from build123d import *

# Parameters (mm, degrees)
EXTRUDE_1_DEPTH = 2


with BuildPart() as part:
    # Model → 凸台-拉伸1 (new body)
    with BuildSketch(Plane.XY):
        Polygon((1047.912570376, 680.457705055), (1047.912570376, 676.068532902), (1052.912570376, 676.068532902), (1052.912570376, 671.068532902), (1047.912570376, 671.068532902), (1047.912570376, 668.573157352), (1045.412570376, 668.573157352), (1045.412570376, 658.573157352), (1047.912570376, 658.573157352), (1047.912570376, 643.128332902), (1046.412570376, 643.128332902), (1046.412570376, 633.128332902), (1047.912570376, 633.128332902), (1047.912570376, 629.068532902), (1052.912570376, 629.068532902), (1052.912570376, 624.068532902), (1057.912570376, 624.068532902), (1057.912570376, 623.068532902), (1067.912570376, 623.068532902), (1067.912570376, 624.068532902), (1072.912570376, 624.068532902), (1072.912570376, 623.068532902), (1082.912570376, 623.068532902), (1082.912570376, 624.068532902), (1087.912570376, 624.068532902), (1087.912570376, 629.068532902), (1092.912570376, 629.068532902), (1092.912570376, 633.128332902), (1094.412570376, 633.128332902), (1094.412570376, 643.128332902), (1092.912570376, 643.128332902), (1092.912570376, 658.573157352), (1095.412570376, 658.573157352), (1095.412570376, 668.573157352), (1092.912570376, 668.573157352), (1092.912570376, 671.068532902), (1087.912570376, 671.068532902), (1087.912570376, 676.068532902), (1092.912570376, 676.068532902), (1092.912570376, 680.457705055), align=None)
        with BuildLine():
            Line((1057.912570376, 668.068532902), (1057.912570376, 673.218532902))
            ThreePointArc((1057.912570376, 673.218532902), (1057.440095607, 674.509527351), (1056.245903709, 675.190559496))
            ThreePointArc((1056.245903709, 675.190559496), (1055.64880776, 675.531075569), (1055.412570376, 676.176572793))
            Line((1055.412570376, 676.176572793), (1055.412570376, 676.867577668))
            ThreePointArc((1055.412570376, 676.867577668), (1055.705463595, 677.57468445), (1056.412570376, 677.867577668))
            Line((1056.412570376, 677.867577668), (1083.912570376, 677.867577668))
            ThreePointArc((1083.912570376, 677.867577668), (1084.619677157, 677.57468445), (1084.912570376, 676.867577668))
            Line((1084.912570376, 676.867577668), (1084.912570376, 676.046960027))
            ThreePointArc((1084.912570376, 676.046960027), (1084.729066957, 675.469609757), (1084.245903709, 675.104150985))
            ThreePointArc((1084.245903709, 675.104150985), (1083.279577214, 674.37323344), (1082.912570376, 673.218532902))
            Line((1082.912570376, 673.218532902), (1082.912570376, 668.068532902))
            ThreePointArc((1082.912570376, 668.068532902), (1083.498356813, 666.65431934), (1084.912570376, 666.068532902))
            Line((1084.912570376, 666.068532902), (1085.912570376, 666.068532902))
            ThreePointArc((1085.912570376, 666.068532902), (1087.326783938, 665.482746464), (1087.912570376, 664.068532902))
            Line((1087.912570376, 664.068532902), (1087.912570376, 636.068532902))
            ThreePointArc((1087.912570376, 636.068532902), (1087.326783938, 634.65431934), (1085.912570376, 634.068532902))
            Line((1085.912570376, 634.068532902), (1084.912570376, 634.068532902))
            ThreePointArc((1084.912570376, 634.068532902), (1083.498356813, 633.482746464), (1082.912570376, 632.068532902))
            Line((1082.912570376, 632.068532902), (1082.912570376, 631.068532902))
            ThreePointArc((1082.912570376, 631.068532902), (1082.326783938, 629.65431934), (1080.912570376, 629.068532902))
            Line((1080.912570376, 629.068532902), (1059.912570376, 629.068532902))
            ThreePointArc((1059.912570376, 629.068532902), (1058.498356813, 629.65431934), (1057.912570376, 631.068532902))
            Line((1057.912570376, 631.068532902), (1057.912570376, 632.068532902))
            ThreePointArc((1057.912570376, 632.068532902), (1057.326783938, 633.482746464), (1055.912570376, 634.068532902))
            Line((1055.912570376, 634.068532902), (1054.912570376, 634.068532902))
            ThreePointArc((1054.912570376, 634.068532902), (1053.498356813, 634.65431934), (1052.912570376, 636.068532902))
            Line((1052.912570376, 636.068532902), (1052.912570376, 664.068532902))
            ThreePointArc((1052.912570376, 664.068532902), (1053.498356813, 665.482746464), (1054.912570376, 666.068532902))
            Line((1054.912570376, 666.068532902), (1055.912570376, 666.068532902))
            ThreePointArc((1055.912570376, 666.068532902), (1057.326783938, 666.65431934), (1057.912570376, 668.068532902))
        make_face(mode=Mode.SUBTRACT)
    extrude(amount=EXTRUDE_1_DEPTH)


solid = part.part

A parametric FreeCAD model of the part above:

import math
import FreeCAD as App
import Part
import Sketcher

V = App.Vector


def add_polygon(sketch, points):
    """Adds a closed chain of lines whose ends are joined by coincident constraints."""
    first, n = sketch.GeometryCount, len(points)
    for a, b in zip(points, points[1:] + points[:1]):
        sketch.addGeometry(Part.LineSegment(App.Vector(*a, 0), App.Vector(*b, 0)), False)
    for i in range(n):
        sketch.addConstraint(Sketcher.Constraint("Coincident", first + i, 2, first + (i + 1) % n, 1))

doc = App.newDocument("Part")
body = doc.addObject("PartDesign::Body", "Body")

sketch1 = body.newObject("Sketcher::SketchObject", "Sketch")
sketch1.AttachmentSupport = (doc.getObject("XY_Plane"), [""])
sketch1.MapMode = "FlatFace"
add_polygon(sketch1, [(1047.9, 680.5), (1047.9, 676.1), (1052.9, 676.1), (1052.9, 671.1), (1047.9, 671.1), (1047.9, 668.6), (1045.4, 668.6), (1045.4, 658.6), (1047.9, 658.6), (1047.9, 643.1), (1046.4, 643.1), (1046.4, 633.1), (1047.9, 633.1), (1047.9, 629.1), (1052.9, 629.1), (1052.9, 624.1), (1057.9, 624.1), (1057.9, 623.1), (1067.9, 623.1), (1067.9, 624.1), (1072.9, 624.1), (1072.9, 623.1), (1082.9, 623.1), (1082.9, 624.1), (1087.9, 624.1), (1087.9, 629.1), (1092.9, 629.1), (1092.9, 633.1), (1094.4, 633.1), (1094.4, 643.1), (1092.9, 643.1), (1092.9, 658.6), (1095.4, 658.6), (1095.4, 668.6), (1092.9, 668.6), (1092.9, 671.1), (1087.9, 671.1), (1087.9, 676.1), (1092.9, 676.1), (1092.9, 680.5)])
sketch1.addGeometry(Part.ArcOfCircle(Part.Circle(V(1055.9, 668.1, 0), V(0, 0, 1), 2), math.radians(-90), math.radians(0)), False)
sketch1.addGeometry(Part.LineSegment(V(1057.9, 668.1, 0), V(1057.9, 673.2, 0)), False)
sketch1.addGeometry(Part.ArcOfCircle(Part.Circle(V(1055.9, 673.2, 0), V(0, 0, 1), 2), math.radians(0), math.radians(80)), False)
sketch1.addGeometry(Part.ArcOfCircle(Part.Circle(V(1056.4, 676.2, 0), V(0, 0, 1), 1), math.radians(180), math.radians(260)), False)
sketch1.addGeometry(Part.LineSegment(V(1055.4, 676.2, 0), V(1055.4, 676.9, 0)), False)
sketch1.addGeometry(Part.ArcOfCircle(Part.Circle(V(1056.4, 676.9, 0), V(0, 0, 1), 1), math.radians(90), math.radians(180)), False)
sketch1.addGeometry(Part.LineSegment(V(1056.4, 677.9, 0), V(1083.9, 677.9, 0)), False)
sketch1.addGeometry(Part.ArcOfCircle(Part.Circle(V(1083.9, 676.9, 0), V(0, 0, 1), 1), math.radians(0), math.radians(90)), False)
sketch1.addGeometry(Part.LineSegment(V(1084.9, 676.9, 0), V(1084.9, 676, 0)), False)
sketch1.addGeometry(Part.ArcOfCircle(Part.Circle(V(1083.9, 676, 0), V(0, 0, 1), 1), math.radians(-71), math.radians(0)), False)
sketch1.addGeometry(Part.ArcOfCircle(Part.Circle(V(1084.9, 673.2, 0), V(0, 0, 1), 2), math.radians(109), math.radians(180)), False)
sketch1.addGeometry(Part.LineSegment(V(1082.9, 673.2, 0), V(1082.9, 668.1, 0)), False)
sketch1.addGeometry(Part.ArcOfCircle(Part.Circle(V(1084.9, 668.1, 0), V(0, 0, 1), 2), math.radians(180), math.radians(270)), False)
sketch1.addGeometry(Part.LineSegment(V(1084.9, 666.1, 0), V(1085.9, 666.1, 0)), False)
sketch1.addGeometry(Part.ArcOfCircle(Part.Circle(V(1085.9, 664.1, 0), V(0, 0, 1), 2), math.radians(0), math.radians(90)), False)
sketch1.addGeometry(Part.LineSegment(V(1087.9, 664.1, 0), V(1087.9, 636.1, 0)), False)
sketch1.addGeometry(Part.ArcOfCircle(Part.Circle(V(1085.9, 636.1, 0), V(0, 0, 1), 2), math.radians(-90), math.radians(0)), False)
sketch1.addGeometry(Part.LineSegment(V(1085.9, 634.1, 0), V(1084.9, 634.1, 0)), False)
sketch1.addGeometry(Part.ArcOfCircle(Part.Circle(V(1084.9, 632.1, 0), V(0, 0, 1), 2), math.radians(90), math.radians(180)), False)
sketch1.addGeometry(Part.LineSegment(V(1082.9, 632.1, 0), V(1082.9, 631.1, 0)), False)
sketch1.addGeometry(Part.ArcOfCircle(Part.Circle(V(1080.9, 631.1, 0), V(0, 0, 1), 2), math.radians(-90), math.radians(0)), False)
sketch1.addGeometry(Part.LineSegment(V(1080.9, 629.1, 0), V(1059.9, 629.1, 0)), False)
sketch1.addGeometry(Part.ArcOfCircle(Part.Circle(V(1059.9, 631.1, 0), V(0, 0, 1), 2), math.radians(180), math.radians(270)), False)
sketch1.addGeometry(Part.LineSegment(V(1057.9, 631.1, 0), V(1057.9, 632.1, 0)), False)
sketch1.addGeometry(Part.ArcOfCircle(Part.Circle(V(1055.9, 632.1, 0), V(0, 0, 1), 2), math.radians(0), math.radians(90)), False)
sketch1.addGeometry(Part.LineSegment(V(1055.9, 634.1, 0), V(1054.9, 634.1, 0)), False)
sketch1.addGeometry(Part.ArcOfCircle(Part.Circle(V(1054.9, 636.1, 0), V(0, 0, 1), 2), math.radians(180), math.radians(270)), False)
sketch1.addGeometry(Part.LineSegment(V(1052.9, 636.1, 0), V(1052.9, 664.1, 0)), False)
sketch1.addGeometry(Part.ArcOfCircle(Part.Circle(V(1054.9, 664.1, 0), V(0, 0, 1), 2), math.radians(90), math.radians(180)), False)
sketch1.addGeometry(Part.LineSegment(V(1054.9, 666.1, 0), V(1055.9, 666.1, 0)), False)
sketch1.addConstraint(Sketcher.Constraint("Tangent", 40, 2, 41, 1))
sketch1.addConstraint(Sketcher.Constraint("Tangent", 41, 2, 42, 1))
sketch1.addConstraint(Sketcher.Constraint("Tangent", 42, 2, 43, 2))
sketch1.addConstraint(Sketcher.Constraint("Tangent", 43, 1, 44, 1))
sketch1.addConstraint(Sketcher.Constraint("Tangent", 44, 2, 45, 2))
sketch1.addConstraint(Sketcher.Constraint("Tangent", 45, 1, 46, 1))
sketch1.addConstraint(Sketcher.Constraint("Tangent", 46, 2, 47, 2))
sketch1.addConstraint(Sketcher.Constraint("Tangent", 47, 1, 48, 1))
sketch1.addConstraint(Sketcher.Constraint("Tangent", 48, 2, 49, 2))
sketch1.addConstraint(Sketcher.Constraint("Tangent", 49, 1, 50, 1))
sketch1.addConstraint(Sketcher.Constraint("Tangent", 50, 2, 51, 1))
sketch1.addConstraint(Sketcher.Constraint("Tangent", 51, 2, 52, 1))
sketch1.addConstraint(Sketcher.Constraint("Tangent", 52, 2, 53, 1))
sketch1.addConstraint(Sketcher.Constraint("Tangent", 53, 2, 54, 2))
sketch1.addConstraint(Sketcher.Constraint("Tangent", 54, 1, 55, 1))
sketch1.addConstraint(Sketcher.Constraint("Tangent", 55, 2, 56, 2))
sketch1.addConstraint(Sketcher.Constraint("Tangent", 56, 1, 57, 1))
sketch1.addConstraint(Sketcher.Constraint("Tangent", 57, 2, 58, 1))
sketch1.addConstraint(Sketcher.Constraint("Tangent", 58, 2, 59, 1))
sketch1.addConstraint(Sketcher.Constraint("Tangent", 59, 2, 60, 2))
sketch1.addConstraint(Sketcher.Constraint("Tangent", 60, 1, 61, 1))
sketch1.addConstraint(Sketcher.Constraint("Tangent", 61, 2, 62, 2))
sketch1.addConstraint(Sketcher.Constraint("Tangent", 62, 1, 63, 1))
sketch1.addConstraint(Sketcher.Constraint("Tangent", 63, 2, 64, 1))
sketch1.addConstraint(Sketcher.Constraint("Tangent", 64, 2, 65, 1))
sketch1.addConstraint(Sketcher.Constraint("Tangent", 65, 2, 66, 2))
sketch1.addConstraint(Sketcher.Constraint("Tangent", 66, 1, 67, 1))
sketch1.addConstraint(Sketcher.Constraint("Tangent", 67, 2, 68, 2))
sketch1.addConstraint(Sketcher.Constraint("Tangent", 68, 1, 69, 1))
sketch1.addConstraint(Sketcher.Constraint("Tangent", 69, 2, 40, 1))
sketch1.addConstraint(Sketcher.Constraint("Vertical", 0))
sketch1.addConstraint(Sketcher.Constraint("Horizontal", 1))
sketch1.addConstraint(Sketcher.Constraint("Vertical", 2))
sketch1.addConstraint(Sketcher.Constraint("Horizontal", 3))
sketch1.addConstraint(Sketcher.Constraint("Vertical", 4))
sketch1.addConstraint(Sketcher.Constraint("Horizontal", 5))
sketch1.addConstraint(Sketcher.Constraint("Vertical", 6))
sketch1.addConstraint(Sketcher.Constraint("Horizontal", 7))
sketch1.addConstraint(Sketcher.Constraint("Vertical", 8))
sketch1.addConstraint(Sketcher.Constraint("Horizontal", 9))
sketch1.addConstraint(Sketcher.Constraint("Vertical", 10))
sketch1.addConstraint(Sketcher.Constraint("Horizontal", 11))
sketch1.addConstraint(Sketcher.Constraint("Vertical", 12))
sketch1.addConstraint(Sketcher.Constraint("Horizontal", 13))
sketch1.addConstraint(Sketcher.Constraint("Vertical", 14))
sketch1.addConstraint(Sketcher.Constraint("Horizontal", 15))
sketch1.addConstraint(Sketcher.Constraint("Vertical", 16))
sketch1.addConstraint(Sketcher.Constraint("Horizontal", 17))
sketch1.addConstraint(Sketcher.Constraint("Vertical", 18))
sketch1.addConstraint(Sketcher.Constraint("Horizontal", 19))
sketch1.addConstraint(Sketcher.Constraint("Vertical", 20))
sketch1.addConstraint(Sketcher.Constraint("Horizontal", 21))
sketch1.addConstraint(Sketcher.Constraint("Vertical", 22))
sketch1.addConstraint(Sketcher.Constraint("Horizontal", 23))
sketch1.addConstraint(Sketcher.Constraint("Vertical", 24))
sketch1.addConstraint(Sketcher.Constraint("Horizontal", 25))
sketch1.addConstraint(Sketcher.Constraint("Vertical", 26))
sketch1.addConstraint(Sketcher.Constraint("Horizontal", 27))
sketch1.addConstraint(Sketcher.Constraint("Vertical", 28))
sketch1.addConstraint(Sketcher.Constraint("Horizontal", 29))
sketch1.addConstraint(Sketcher.Constraint("Vertical", 30))
sketch1.addConstraint(Sketcher.Constraint("Horizontal", 31))
sketch1.addConstraint(Sketcher.Constraint("Vertical", 32))
sketch1.addConstraint(Sketcher.Constraint("Horizontal", 33))
sketch1.addConstraint(Sketcher.Constraint("Vertical", 34))
sketch1.addConstraint(Sketcher.Constraint("Horizontal", 35))
sketch1.addConstraint(Sketcher.Constraint("Vertical", 36))
sketch1.addConstraint(Sketcher.Constraint("Horizontal", 37))
sketch1.addConstraint(Sketcher.Constraint("Vertical", 38))
sketch1.addConstraint(Sketcher.Constraint("Horizontal", 39))
sketch1.addConstraint(Sketcher.Constraint("Vertical", 41))
sketch1.addConstraint(Sketcher.Constraint("Vertical", 44))
sketch1.addConstraint(Sketcher.Constraint("Horizontal", 46))
sketch1.addConstraint(Sketcher.Constraint("Vertical", 48))
sketch1.addConstraint(Sketcher.Constraint("Vertical", 51))
sketch1.addConstraint(Sketcher.Constraint("Horizontal", 53))
sketch1.addConstraint(Sketcher.Constraint("Vertical", 55))
sketch1.addConstraint(Sketcher.Constraint("Horizontal", 57))
sketch1.addConstraint(Sketcher.Constraint("Vertical", 59))
sketch1.addConstraint(Sketcher.Constraint("Horizontal", 61))
sketch1.addConstraint(Sketcher.Constraint("Vertical", 63))
sketch1.addConstraint(Sketcher.Constraint("Horizontal", 65))
sketch1.addConstraint(Sketcher.Constraint("Vertical", 67))
sketch1.addConstraint(Sketcher.Constraint("Horizontal", 69))
sketch1.addConstraint(Sketcher.Constraint("Equal", 40, 42))
sketch1.addConstraint(Sketcher.Constraint("Equal", 43, 45))
sketch1.addConstraint(Sketcher.Constraint("Equal", 45, 47))
sketch1.addConstraint(Sketcher.Constraint("Equal", 47, 49))
sketch1.addConstraint(Sketcher.Constraint("Equal", 42, 50))
sketch1.addConstraint(Sketcher.Constraint("Equal", 50, 52))
sketch1.addConstraint(Sketcher.Constraint("Equal", 52, 54))
sketch1.addConstraint(Sketcher.Constraint("Equal", 54, 56))
sketch1.addConstraint(Sketcher.Constraint("Equal", 56, 58))
sketch1.addConstraint(Sketcher.Constraint("Equal", 58, 60))
sketch1.addConstraint(Sketcher.Constraint("Equal", 60, 62))
sketch1.addConstraint(Sketcher.Constraint("Equal", 62, 64))
sketch1.addConstraint(Sketcher.Constraint("Equal", 64, 66))
sketch1.addConstraint(Sketcher.Constraint("Equal", 66, 68))
sketch1.addConstraint(Sketcher.Constraint("Horizontal", 42, 3, 50, 3))
sketch1.addConstraint(Sketcher.Constraint("Horizontal", 40, 3, 52, 3))
sketch1.addConstraint(Sketcher.Constraint("Horizontal", 58, 3, 64, 3))
sketch1.addConstraint(Sketcher.Constraint("Horizontal", 15, 2, 18, 2))
sketch1.addConstraint(Sketcher.Constraint("Horizontal", 17, 2, 20, 2))
sketch1.addConstraint(Sketcher.Constraint("Horizontal", 19, 2, 22, 2))
sketch1.addConstraint(Sketcher.Constraint("Horizontal", 13, 2, 24, 2))
sketch1.addConstraint(Sketcher.Constraint("Horizontal", 11, 2, 26, 2))
sketch1.addConstraint(Sketcher.Constraint("Horizontal", 9, 2, 28, 2))
sketch1.addConstraint(Sketcher.Constraint("Horizontal", 7, 2, 30, 2))
sketch1.addConstraint(Sketcher.Constraint("Horizontal", 5, 2, 32, 2))
sketch1.addConstraint(Sketcher.Constraint("Horizontal", 3, 2, 34, 2))
sketch1.addConstraint(Sketcher.Constraint("Horizontal", 1, 2, 36, 2))
sketch1.addConstraint(Sketcher.Constraint("Horizontal", 25, 2, 60, 1))
sketch1.addConstraint(Sketcher.Constraint("Vertical", 52, 3, 58, 3))
sketch1.addConstraint(Sketcher.Constraint("Vertical", 42, 3, 64, 3))
sketch1.addConstraint(Sketcher.Constraint("Vertical", 0, 2, 3, 2))
sketch1.addConstraint(Sketcher.Constraint("Vertical", 4, 2, 7, 2))
sketch1.addConstraint(Sketcher.Constraint("Vertical", 8, 2, 11, 2))
sketch1.addConstraint(Sketcher.Constraint("Vertical", 2, 2, 13, 2))
sketch1.addConstraint(Sketcher.Constraint("Vertical", 26, 2, 29, 2))
sketch1.addConstraint(Sketcher.Constraint("Vertical", 30, 2, 33, 2))
sketch1.addConstraint(Sketcher.Constraint("Vertical", 24, 2, 35, 2))
sketch1.addConstraint(Sketcher.Constraint("Vertical", 34, 2, 37, 2))
sketch1.addConstraint(Sketcher.Constraint("Vertical", 16, 2, 40, 2))
sketch1.addConstraint(Sketcher.Constraint("Vertical", 58, 3, 47, 1))
sketch1.addConstraint(Sketcher.Constraint("Vertical", 22, 2, 50, 2))
sketch1.addConstraint(Sketcher.Constraint("Vertical", 36, 2, 54, 1))
sketch1.addConstraint(Sketcher.Constraint("Vertical", 14, 2, 66, 1))
sketch1.addConstraint(Sketcher.Constraint("Equal", 13, 15))
sketch1.addConstraint(Sketcher.Constraint("Equal", 15, 19))
sketch1.addConstraint(Sketcher.Constraint("Equal", 17, 21))
sketch1.addConstraint(Sketcher.Constraint("Equal", 19, 23))
sketch1.addConstraint(Sketcher.Constraint("Equal", 23, 25))
sketch1.addConstraint(Sketcher.Constraint("Equal", 11, 27))
sketch1.addConstraint(Sketcher.Constraint("Equal", 7, 31))
sketch1.addConstraint(Sketcher.Constraint("Equal", 37, 2))
sketch1.addConstraint(Sketcher.Constraint("Equal", 21, 6))
sketch1.addConstraint(Sketcher.Constraint("Equal", 6, 10))
sketch1.addConstraint(Sketcher.Constraint("Equal", 2, 14))
sketch1.addConstraint(Sketcher.Constraint("Equal", 69, 16))
sketch1.addConstraint(Sketcher.Constraint("Equal", 22, 59))
sketch1.addConstraint(Sketcher.Constraint("Radius", 40, 2.0))
sketch1.addConstraint(Sketcher.Constraint("Radius", 43, 1.0))
sketch1.addConstraint(Sketcher.Constraint("DistanceX", 1, 1, 1, 2, 5.0))
sketch1.addConstraint(Sketcher.Constraint("DistanceX", 17, 1, 17, 2, 10.0))
sketch1.addConstraint(Sketcher.Constraint("DistanceY", 55, 2, 55, 1, 28.0))
sketch1.addConstraint(Sketcher.Constraint("DistanceX", 5, 2, 5, 1, 2.5))
sketch1.addConstraint(Sketcher.Constraint("DistanceX", 9, 2, 9, 1, 1.5))
sketch1.addConstraint(Sketcher.Constraint("DistanceX", 46, 1, 46, 2, 27.5))
sketch1.addConstraint(Sketcher.Constraint("DistanceY", 41, 1, 41, 2, 5.15))
sketch1.addConstraint(Sketcher.Constraint("DistanceY", 12, 2, 12, 1, 4.0598))
sketch1.addConstraint(Sketcher.Constraint("DistanceY", 0, 2, 0, 1, 4.389172))
sketch1.addConstraint(Sketcher.Constraint("DistanceY", 4, 2, 4, 1, 2.495376))
sketch1.addConstraint(Sketcher.Constraint("DistanceY", 8, 2, 8, 1, 15.444824))
sketch1.addConstraint(Sketcher.Constraint("DistanceY", 44, 1, 44, 2, 0.691005))
sketch1.addConstraint(Sketcher.Constraint("DistanceX", -1, 1, 40, 3, 1055.91257))
sketch1.addConstraint(Sketcher.Constraint("DistanceY", -1, 1, 49, 3, 676.04696))
pad1 = body.newObject("PartDesign::Pad", "Pad")
pad1.Profile = sketch1
pad1.Length = 2

doc.recompute()
